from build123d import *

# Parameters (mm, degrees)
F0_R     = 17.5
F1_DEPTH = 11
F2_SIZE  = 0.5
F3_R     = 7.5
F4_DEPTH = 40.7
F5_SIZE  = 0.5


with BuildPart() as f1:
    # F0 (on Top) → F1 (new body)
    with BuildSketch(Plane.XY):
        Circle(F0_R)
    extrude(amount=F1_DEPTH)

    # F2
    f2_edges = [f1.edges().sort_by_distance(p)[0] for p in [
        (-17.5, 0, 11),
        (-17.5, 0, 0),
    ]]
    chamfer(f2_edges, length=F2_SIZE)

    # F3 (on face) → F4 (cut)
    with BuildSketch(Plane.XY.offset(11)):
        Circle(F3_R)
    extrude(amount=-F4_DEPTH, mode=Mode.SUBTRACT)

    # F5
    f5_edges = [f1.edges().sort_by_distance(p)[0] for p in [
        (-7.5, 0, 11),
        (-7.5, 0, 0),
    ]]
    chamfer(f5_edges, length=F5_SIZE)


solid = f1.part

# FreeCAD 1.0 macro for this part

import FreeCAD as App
import Part
import Sketcher
Q = App.Units.Quantity


def edges_at(feature, points):
    """Names of the edges that pass closest to the given points."""
    edges = feature.Shape.Edges
    near = lambda p: min(range(len(edges)), key=lambda i: edges[i].distToShape(Part.Vertex(*p))[0])
    return sorted({f"Edge{near(p) + 1}" for p in points})

doc = App.newDocument("Part")
params = doc.addObject("Spreadsheet::Sheet", "Params")
for row, (alias, value) in enumerate([
    ("sketch1_diameter", "35 mm"),
    ("pad1_length", "11 mm"),
    ("chamfer_size", "0.5 mm"),
    ("sketch2_diameter", "15 mm"),
    ("pocket1_length", "40.7 mm"),
    ("chamfer2_size", "0.5 mm"),
], start=1):
    params.set(f"A{row}", alias)
    params.set(f"B{row}", "=" + value)
    params.setAlias(f"B{row}", alias)

body = doc.addObject("PartDesign::Body", "Body")

sketch1 = body.newObject("Sketcher::SketchObject", "Sketch")
sketch1.AttachmentSupport = (doc.getObject("XY_Plane"), [""])
sketch1.MapMode = "FlatFace"
sketch1.addGeometry(Part.Circle(App.Vector(0, 0, 0), App.Vector(0, 0, 1), 18), False)
sketch1.addConstraint(Sketcher.Constraint("Coincident", 0, 3, -1, 1))
sketch1.addConstraint(Sketcher.Constraint("Diameter", 0, Q("35 mm")))
sketch1.setExpression("Constraints[1]", "Params.sketch1_diameter")
pad1 = body.newObject("PartDesign::Pad", "Pad")
pad1.Profile = sketch1
pad1.setExpression("Length", "Params.pad1_length")
doc.recompute()

chamfer = body.newObject("PartDesign::Chamfer", "Chamfer")
chamfer.Base = (pad1, edges_at(pad1, [(-17.5, 0, 11), (-17.5, 0, 0)]))
chamfer.setExpression("Size", "Params.chamfer_size")

sketch2 = body.newObject("Sketcher::SketchObject", "Sketch001")
sketch2.AttachmentSupport = (doc.getObject("XY_Plane"), [""])
sketch2.MapMode = "FlatFace"
sketch2.AttachmentOffset = App.Placement(App.Vector(0, 0, 11), App.Rotation())
sketch2.addGeometry(Part.Circle(App.Vector(0, 0, 0), App.Vector(0, 0, 1), 8), False)
sketch2.addConstraint(Sketcher.Constraint("Coincident", 0, 3, -1, 1))
sketch2.addConstraint(Sketcher.Constraint("Diameter", 0, Q("15 mm")))
sketch2.setExpression("Constraints[1]", "Params.sketch2_diameter")
pocket1 = body.newObject("PartDesign::Pocket", "Pocket")
pocket1.Profile = sketch2
pocket1.setExpression("Length", "Params.pocket1_length")
doc.recompute()

chamfer2 = body.newObject("PartDesign::Chamfer", "Chamfer001")
chamfer2.Base = (pocket1, edges_at(pocket1, [(-7.5, 0, 11), (-7.5, 0, 0)]))
chamfer2.setExpression("Size", "Params.chamfer2_size")

doc.recompute()
